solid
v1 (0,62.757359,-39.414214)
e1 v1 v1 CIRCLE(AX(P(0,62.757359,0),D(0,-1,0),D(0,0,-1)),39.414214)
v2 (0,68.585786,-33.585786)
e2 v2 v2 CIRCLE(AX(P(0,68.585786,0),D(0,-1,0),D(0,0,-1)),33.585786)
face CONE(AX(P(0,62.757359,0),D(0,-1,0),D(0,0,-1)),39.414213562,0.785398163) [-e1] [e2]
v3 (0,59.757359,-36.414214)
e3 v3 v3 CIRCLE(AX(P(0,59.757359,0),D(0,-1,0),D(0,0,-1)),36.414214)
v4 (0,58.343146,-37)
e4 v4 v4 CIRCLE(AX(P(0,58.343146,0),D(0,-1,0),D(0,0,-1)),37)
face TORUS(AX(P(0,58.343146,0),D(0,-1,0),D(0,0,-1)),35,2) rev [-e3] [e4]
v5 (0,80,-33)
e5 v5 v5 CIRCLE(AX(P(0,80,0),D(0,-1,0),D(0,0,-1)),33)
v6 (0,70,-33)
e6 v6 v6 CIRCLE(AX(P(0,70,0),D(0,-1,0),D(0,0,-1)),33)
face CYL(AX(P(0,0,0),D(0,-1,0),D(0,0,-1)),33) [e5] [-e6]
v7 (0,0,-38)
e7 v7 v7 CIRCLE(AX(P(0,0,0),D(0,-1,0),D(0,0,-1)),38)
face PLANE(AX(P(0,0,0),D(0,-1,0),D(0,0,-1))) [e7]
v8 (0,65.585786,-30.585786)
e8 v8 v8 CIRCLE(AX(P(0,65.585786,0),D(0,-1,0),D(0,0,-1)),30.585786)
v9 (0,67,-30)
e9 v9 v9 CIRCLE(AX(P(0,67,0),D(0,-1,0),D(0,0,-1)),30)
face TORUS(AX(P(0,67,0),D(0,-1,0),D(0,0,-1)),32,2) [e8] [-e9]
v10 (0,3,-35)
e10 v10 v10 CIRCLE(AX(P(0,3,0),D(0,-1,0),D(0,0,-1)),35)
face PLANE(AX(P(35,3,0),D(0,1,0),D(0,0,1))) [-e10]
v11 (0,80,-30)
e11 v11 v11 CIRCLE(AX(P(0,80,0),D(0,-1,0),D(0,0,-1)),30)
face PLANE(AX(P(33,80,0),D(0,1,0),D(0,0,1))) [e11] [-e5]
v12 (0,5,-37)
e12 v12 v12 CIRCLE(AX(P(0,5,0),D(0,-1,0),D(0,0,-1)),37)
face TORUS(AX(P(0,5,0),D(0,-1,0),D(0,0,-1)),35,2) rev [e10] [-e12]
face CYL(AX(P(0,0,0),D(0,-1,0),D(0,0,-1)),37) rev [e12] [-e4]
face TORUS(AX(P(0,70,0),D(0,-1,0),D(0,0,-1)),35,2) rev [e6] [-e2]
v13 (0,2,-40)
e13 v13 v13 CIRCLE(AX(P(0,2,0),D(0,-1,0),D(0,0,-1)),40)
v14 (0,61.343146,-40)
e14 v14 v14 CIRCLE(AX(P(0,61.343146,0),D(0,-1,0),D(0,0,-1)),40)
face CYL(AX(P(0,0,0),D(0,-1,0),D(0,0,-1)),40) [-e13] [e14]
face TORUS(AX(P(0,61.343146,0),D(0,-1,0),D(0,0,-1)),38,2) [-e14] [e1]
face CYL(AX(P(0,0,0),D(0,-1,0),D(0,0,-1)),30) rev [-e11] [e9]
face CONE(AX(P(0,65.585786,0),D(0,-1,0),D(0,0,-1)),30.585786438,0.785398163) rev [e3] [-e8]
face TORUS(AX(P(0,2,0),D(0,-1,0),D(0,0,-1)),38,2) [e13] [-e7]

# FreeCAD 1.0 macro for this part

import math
import FreeCAD as App
import Part
import Sketcher
from FreeCAD import Vector
Q = App.Units.Quantity

doc = App.newDocument("Part")
body = doc.addObject("PartDesign::Body", "Body")

# Sketch on XY plane
sketch1 = body.newObject("Sketcher::SketchObject", "Sketch")
sketch1.AttachmentSupport = (doc.getObject("XY_Plane"), [""])
sketch1.MapMode = "FlatFace"
sketch1.addGeometry([
    Part.LineSegment(Vector(0, 0, 0), Vector(38, 0, 0)),  # 0
    Part.ArcOfCircle(Part.Circle(Vector(38, 2, 0), Vector(0, 0, 1), 2), math.radians(-90), math.radians(0)),  # 1
    Part.LineSegment(Vector(40, 2, 0), Vector(40, 61.343146, 0)),  # 2
    Part.ArcOfCircle(Part.Circle(Vector(38, 61.343146, 0), Vector(0, 0, 1), 2), math.radians(0), math.radians(45)),  # 3
    Part.LineSegment(Vector(39.414214, 62.757359, 0), Vector(33.585786, 68.585786, 0)),  # 4
    Part.ArcOfCircle(Part.Circle(Vector(35, 70, 0), Vector(0, 0, 1), 2), math.radians(180), math.radians(225)),  # 5
    Part.LineSegment(Vector(33, 70, 0), Vector(33, 80, 0)),  # 6
    Part.LineSegment(Vector(33, 80, 0), Vector(30, 80, 0)),  # 7
    Part.LineSegment(Vector(30, 80, 0), Vector(30, 67, 0)),  # 8
    Part.ArcOfCircle(Part.Circle(Vector(32, 67, 0), Vector(0, 0, 1), 2), math.radians(180), math.radians(225)),  # 9
    Part.LineSegment(Vector(30.585786, 65.585786, 0), Vector(36.414214, 59.757359, 0)),  # 10
    Part.ArcOfCircle(Part.Circle(Vector(35, 58.343146, 0), Vector(0, 0, 1), 2), math.radians(0), math.radians(45)),  # 11
    Part.LineSegment(Vector(37, 58.343146, 0), Vector(37, 5, 0)),  # 12
    Part.ArcOfCircle(Part.Circle(Vector(35, 5, 0), Vector(0, 0, 1), 2), math.radians(-90), math.radians(0)),  # 13
    Part.LineSegment(Vector(35, 3, 0), Vector(0, 3, 0)),  # 14
    Part.LineSegment(Vector(0, 3, 0), Vector(0, 0, 0)),  # 15
], False)
sketch1.addConstraint([
    Sketcher.Constraint("Tangent", 0, 2, 1, 1),
    Sketcher.Constraint("Tangent", 1, 2, 2, 1),
    Sketcher.Constraint("Tangent", 2, 2, 3, 1),
    Sketcher.Constraint("Tangent", 3, 2, 4, 1),
    Sketcher.Constraint("Tangent", 4, 2, 5, 2),
    Sketcher.Constraint("Tangent", 5, 1, 6, 1),
    Sketcher.Constraint("Coincident", 6, 2, 7, 1),
    Sketcher.Constraint("Coincident", 7, 2, 8, 1),
    Sketcher.Constraint("Tangent", 8, 2, 9, 1),
    Sketcher.Constraint("Tangent", 9, 2, 10, 1),
    Sketcher.Constraint("Tangent", 10, 2, 11, 2),
    Sketcher.Constraint("Tangent", 11, 1, 12, 1),
    Sketcher.Constraint("Tangent", 12, 2, 13, 2),
    Sketcher.Constraint("Tangent", 13, 1, 14, 1),
    Sketcher.Constraint("Coincident", 14, 2, 15, 1),
    Sketcher.Constraint("Coincident", 15, 2, 0, 1),
    Sketcher.Constraint("Horizontal", 0),
    Sketcher.Constraint("Vertical", 2),
    Sketcher.Constraint("Vertical", 6),
    Sketcher.Constraint("Horizontal", 7),
    Sketcher.Constraint("Vertical", 8),
    Sketcher.Constraint("Vertical", 12),
    Sketcher.Constraint("Horizontal", 14),
    Sketcher.Constraint("Vertical", 15),
    Sketcher.Constraint("Coincident", 15, 2, -1, 1),
    Sketcher.Constraint("Equal", 1, 3),
    Sketcher.Constraint("Equal", 3, 5),
    Sketcher.Constraint("Equal", 5, 9),
    Sketcher.Constraint("Equal", 9, 11),
    Sketcher.Constraint("Equal", 11, 13),
    Sketcher.Constraint("Parallel", 4, 10),
    Sketcher.Constraint("Vertical", 5, 3, 11, 3),
    Sketcher.Constraint("Equal", 7, 15),
    Sketcher.Constraint("Equal", 4, 10),
    Sketcher.Constraint("Radius", 1, 2.0),
    Sketcher.Constraint("DistanceX", 0, 1, 0, 2, 38.0),
    Sketcher.Constraint("DistanceX", 7, 2, 7, 1, 3.0),
    Sketcher.Constraint("DistanceY", 6, 1, 6, 2, 10.0),
    Sketcher.Constraint("DistanceY", 8, 2, 8, 1, 13.0),
    Sketcher.Constraint("Angle", 4, Q("135 deg")),
    Sketcher.Constraint("DistanceY", -1, 1, 5, 3, 70.0),
])
revolution = body.newObject("PartDesign::Revolution", "Revolution")
revolution.Profile = sketch1
revolution.ReferenceAxis = (sketch1, ["V_Axis"])
revolution.Angle = 360

doc.recompute()
